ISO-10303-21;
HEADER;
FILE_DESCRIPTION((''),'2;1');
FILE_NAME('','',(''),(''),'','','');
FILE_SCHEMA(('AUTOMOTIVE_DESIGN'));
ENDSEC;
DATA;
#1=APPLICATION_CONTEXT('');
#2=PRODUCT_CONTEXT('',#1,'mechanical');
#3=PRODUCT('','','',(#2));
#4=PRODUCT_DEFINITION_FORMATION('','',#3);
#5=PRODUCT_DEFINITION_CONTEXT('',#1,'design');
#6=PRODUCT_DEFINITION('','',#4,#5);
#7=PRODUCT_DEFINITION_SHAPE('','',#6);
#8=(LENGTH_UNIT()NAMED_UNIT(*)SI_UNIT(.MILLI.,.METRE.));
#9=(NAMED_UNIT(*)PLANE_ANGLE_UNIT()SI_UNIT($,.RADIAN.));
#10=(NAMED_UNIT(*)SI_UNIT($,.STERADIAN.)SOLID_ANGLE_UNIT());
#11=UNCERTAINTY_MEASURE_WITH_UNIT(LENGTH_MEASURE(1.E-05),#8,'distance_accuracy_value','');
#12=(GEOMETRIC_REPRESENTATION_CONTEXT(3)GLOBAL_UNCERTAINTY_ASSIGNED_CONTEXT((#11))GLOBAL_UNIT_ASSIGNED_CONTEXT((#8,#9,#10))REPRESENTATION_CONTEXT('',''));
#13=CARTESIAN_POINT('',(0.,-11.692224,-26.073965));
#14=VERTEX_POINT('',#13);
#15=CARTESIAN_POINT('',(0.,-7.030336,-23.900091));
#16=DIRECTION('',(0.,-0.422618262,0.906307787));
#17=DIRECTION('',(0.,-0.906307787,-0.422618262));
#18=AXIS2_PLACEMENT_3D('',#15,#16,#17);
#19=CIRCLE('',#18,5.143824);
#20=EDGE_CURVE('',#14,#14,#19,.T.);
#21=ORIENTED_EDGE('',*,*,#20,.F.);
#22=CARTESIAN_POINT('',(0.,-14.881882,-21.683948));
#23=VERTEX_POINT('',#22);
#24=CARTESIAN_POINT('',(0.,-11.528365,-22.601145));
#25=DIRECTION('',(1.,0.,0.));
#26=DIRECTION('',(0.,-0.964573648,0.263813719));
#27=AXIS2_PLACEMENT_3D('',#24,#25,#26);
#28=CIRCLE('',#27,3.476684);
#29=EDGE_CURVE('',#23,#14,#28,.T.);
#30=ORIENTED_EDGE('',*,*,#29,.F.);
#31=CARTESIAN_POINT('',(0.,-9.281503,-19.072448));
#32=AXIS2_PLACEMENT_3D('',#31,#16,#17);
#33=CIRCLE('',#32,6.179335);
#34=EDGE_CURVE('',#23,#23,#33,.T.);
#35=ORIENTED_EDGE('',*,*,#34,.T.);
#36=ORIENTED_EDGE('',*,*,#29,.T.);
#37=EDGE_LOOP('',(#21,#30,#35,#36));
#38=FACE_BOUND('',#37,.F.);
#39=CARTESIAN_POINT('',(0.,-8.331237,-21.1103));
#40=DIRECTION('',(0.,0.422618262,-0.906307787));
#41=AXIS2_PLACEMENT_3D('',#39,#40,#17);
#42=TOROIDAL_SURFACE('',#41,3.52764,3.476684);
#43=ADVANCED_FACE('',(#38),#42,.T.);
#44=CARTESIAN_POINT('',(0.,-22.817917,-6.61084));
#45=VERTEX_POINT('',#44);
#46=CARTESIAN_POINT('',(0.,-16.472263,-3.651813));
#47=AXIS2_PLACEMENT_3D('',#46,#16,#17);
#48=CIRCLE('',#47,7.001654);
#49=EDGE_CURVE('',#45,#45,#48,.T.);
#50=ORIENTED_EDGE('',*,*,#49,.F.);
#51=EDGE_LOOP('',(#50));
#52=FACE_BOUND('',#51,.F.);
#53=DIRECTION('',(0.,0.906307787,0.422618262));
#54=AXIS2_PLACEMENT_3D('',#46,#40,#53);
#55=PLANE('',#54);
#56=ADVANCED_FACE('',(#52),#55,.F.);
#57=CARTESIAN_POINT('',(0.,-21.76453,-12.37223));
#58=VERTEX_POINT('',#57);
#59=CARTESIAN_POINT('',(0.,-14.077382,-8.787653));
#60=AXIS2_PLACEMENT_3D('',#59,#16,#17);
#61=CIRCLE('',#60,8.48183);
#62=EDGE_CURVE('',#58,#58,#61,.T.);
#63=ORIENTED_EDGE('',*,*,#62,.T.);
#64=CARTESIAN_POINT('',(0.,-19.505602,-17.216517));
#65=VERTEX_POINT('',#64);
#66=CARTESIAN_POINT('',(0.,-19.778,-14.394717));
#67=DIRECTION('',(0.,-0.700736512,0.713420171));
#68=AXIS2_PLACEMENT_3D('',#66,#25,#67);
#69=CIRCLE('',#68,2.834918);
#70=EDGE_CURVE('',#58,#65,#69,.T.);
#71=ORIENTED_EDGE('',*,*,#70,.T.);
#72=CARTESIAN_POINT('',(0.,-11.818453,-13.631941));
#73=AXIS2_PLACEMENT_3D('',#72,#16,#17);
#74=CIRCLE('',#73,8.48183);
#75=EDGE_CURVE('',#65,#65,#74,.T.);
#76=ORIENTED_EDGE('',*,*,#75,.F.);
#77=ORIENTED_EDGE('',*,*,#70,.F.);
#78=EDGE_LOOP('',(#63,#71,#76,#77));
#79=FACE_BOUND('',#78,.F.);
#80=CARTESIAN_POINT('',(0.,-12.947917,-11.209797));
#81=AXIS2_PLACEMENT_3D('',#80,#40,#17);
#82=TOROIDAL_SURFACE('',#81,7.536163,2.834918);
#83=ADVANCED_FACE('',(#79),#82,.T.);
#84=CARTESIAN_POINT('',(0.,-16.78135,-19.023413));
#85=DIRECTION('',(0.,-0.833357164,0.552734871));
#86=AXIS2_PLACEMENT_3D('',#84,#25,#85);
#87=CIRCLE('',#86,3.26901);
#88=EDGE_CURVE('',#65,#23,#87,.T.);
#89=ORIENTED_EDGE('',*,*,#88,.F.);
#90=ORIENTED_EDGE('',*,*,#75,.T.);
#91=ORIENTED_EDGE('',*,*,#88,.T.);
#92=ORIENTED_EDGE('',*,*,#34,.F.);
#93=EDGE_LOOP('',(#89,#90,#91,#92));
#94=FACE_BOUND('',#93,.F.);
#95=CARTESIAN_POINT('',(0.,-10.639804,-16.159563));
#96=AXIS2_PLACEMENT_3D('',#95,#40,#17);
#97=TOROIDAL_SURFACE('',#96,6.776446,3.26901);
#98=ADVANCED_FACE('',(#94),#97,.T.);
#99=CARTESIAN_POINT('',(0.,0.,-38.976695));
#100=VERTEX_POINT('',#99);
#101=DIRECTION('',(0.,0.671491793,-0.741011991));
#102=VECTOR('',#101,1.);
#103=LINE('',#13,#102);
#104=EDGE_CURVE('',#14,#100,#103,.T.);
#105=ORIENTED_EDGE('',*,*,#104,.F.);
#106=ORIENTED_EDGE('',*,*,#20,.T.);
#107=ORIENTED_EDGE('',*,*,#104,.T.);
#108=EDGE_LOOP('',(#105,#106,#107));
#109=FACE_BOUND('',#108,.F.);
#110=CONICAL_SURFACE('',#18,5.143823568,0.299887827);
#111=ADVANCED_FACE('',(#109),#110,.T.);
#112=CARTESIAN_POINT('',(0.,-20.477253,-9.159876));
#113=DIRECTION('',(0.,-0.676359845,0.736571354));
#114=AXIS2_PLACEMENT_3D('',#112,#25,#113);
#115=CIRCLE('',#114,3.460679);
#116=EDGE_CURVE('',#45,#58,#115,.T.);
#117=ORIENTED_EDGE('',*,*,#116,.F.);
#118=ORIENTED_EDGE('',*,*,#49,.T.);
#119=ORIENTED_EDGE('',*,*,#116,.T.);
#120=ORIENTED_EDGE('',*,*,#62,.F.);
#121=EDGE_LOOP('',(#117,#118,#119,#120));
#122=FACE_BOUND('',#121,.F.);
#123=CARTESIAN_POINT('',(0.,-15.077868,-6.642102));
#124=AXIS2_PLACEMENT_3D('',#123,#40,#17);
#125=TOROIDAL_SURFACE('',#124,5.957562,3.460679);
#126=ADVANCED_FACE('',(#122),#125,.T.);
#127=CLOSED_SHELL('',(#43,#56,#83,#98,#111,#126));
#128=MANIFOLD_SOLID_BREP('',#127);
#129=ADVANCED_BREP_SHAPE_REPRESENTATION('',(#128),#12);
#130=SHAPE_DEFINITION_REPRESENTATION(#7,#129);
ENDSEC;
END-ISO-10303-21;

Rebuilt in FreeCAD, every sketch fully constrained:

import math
import FreeCAD as App
import Part
import Sketcher

V = App.Vector
Q = App.Units.Quantity

doc = App.newDocument("Part")
body = doc.addObject("PartDesign::Body", "Body")

sketch1 = body.newObject("Sketcher::SketchObject", "Sketch")
sketch1.AttachmentSupport = (doc.getObject("YZ_Plane"), [""])
sketch1.MapMode = "FlatFace"
sketch1.addGeometry([
    Part.ArcOfCircle(Part.Circle(V(-20.5, -9.2, 0), V(0, 0, 1), 3.5), math.radians(133), math.radians(248)),
    Part.ArcOfCircle(Part.Circle(V(-19.8, -14.4, 0), V(0, 0, 1), 2.8), math.radians(134), math.radians(276)),
    Part.ArcOfCircle(Part.Circle(V(-16.8, -19, 0), V(0, 0, 1), 3.3), math.radians(146), math.radians(306)),
    Part.ArcOfCircle(Part.Circle(V(-11.5, -22.6, 0), V(0, 0, 1), 3.5), math.radians(165), math.radians(267)),
    Part.LineSegment(V(-11.7, -26.1, 0), V(0, -39, 0)),
    Part.LineSegment(V(0, -39, 0), V(-7, -23.9, 0)),
    Part.LineSegment(V(-7, -23.9, 0), V(-9.3, -19.1, 0)),
    Part.LineSegment(V(-9.3, -19.1, 0), V(-11.8, -13.6, 0)),
    Part.LineSegment(V(-11.8, -13.6, 0), V(-14.1, -8.8, 0)),
    Part.LineSegment(V(-14.1, -8.8, 0), V(-16.5, -3.7, 0)),
    Part.LineSegment(V(-16.5, -3.7, 0), V(-22.8, -6.6, 0)),
], False)
sketch1.addGeometry(Part.LineSegment(V(0, -39, 0), V(-16.5, -3.7, 0)), True)
sketch1.addConstraint([
    Sketcher.Constraint("Coincident", 0, 2, 1, 1),
    Sketcher.Constraint("Coincident", 1, 2, 2, 1),
    Sketcher.Constraint("Coincident", 2, 2, 3, 1),
    Sketcher.Constraint("Coincident", 3, 2, 4, 1),
    Sketcher.Constraint("Coincident", 4, 2, 5, 1),
    Sketcher.Constraint("Coincident", 5, 2, 6, 1),
    Sketcher.Constraint("Coincident", 6, 2, 7, 1),
    Sketcher.Constraint("Coincident", 7, 2, 8, 1),
    Sketcher.Constraint("Coincident", 8, 2, 9, 1),
    Sketcher.Constraint("Coincident", 9, 2, 10, 1),
    Sketcher.Constraint("Coincident", 10, 2, 0, 1),
    Sketcher.Constraint("Coincident", 11, 1, 4, 2),
    Sketcher.Constraint("Coincident", 11, 2, 9, 2),
    Sketcher.Constraint("PointOnObject", 4, 2, -2),
    Sketcher.Constraint("Parallel", 5, 6),
    Sketcher.Constraint("Parallel", 6, 7),
    Sketcher.Constraint("Parallel", 7, 8),
    Sketcher.Constraint("Parallel", 8, 9),
    Sketcher.Constraint("Perpendicular", 9, 10),
    Sketcher.Constraint("Angle", 5, Q("115 deg")),
    Sketcher.Constraint("Radius", 0, 3.460679),
    Sketcher.Constraint("Radius", 2, 3.26901),
    Sketcher.Constraint("DistanceX", 1, 3, -1, 1, 19.778),
    Sketcher.Constraint("Radius", 1, 2.834918),
    Sketcher.Constraint("Radius", 3, 3.476684),
    Sketcher.Constraint("DistanceX", 1, 3, 1, 2, 0.272398),
    Sketcher.Constraint("DistanceY", 2, 2, 6, 2, 2.6115),
    Sketcher.Constraint("Distance", 4, 17.41231),
    Sketcher.Constraint("Distance", 8, 5.34508),
    Sketcher.Constraint("DistanceX", 2, 3, -1, 1, 16.78135),
    Sketcher.Constraint("DistanceX", 0, 2, -1, 1, 21.76453),
    Sketcher.Constraint("DistanceY", 0, 2, -1, 1, 12.37223),
    Sketcher.Constraint("DistanceX", 2, 2, -1, 1, 14.881882),
    Sketcher.Constraint("DistanceY", 5, 2, -1, 1, 23.900091),
    Sketcher.Constraint("DistanceY", 7, 2, -1, 1, 13.631941),
    Sketcher.Constraint("DistanceX", 8, 2, -1, 1, 14.077382),
    Sketcher.Constraint("DistanceY", 10, 2, -1, 1, 6.61084),
    Sketcher.Constraint("DistanceY", 1, 3, 0, 3, 5.234841),
    Sketcher.Constraint("DistanceY", 3, 3, 2, 3, 3.577732),
])
revolution = body.newObject("PartDesign::Revolution", "Revolution")
revolution.Profile = sketch1
revolution.ReferenceAxis = (sketch1, ["Axis0"])
revolution.Angle = 360

doc.recompute()
